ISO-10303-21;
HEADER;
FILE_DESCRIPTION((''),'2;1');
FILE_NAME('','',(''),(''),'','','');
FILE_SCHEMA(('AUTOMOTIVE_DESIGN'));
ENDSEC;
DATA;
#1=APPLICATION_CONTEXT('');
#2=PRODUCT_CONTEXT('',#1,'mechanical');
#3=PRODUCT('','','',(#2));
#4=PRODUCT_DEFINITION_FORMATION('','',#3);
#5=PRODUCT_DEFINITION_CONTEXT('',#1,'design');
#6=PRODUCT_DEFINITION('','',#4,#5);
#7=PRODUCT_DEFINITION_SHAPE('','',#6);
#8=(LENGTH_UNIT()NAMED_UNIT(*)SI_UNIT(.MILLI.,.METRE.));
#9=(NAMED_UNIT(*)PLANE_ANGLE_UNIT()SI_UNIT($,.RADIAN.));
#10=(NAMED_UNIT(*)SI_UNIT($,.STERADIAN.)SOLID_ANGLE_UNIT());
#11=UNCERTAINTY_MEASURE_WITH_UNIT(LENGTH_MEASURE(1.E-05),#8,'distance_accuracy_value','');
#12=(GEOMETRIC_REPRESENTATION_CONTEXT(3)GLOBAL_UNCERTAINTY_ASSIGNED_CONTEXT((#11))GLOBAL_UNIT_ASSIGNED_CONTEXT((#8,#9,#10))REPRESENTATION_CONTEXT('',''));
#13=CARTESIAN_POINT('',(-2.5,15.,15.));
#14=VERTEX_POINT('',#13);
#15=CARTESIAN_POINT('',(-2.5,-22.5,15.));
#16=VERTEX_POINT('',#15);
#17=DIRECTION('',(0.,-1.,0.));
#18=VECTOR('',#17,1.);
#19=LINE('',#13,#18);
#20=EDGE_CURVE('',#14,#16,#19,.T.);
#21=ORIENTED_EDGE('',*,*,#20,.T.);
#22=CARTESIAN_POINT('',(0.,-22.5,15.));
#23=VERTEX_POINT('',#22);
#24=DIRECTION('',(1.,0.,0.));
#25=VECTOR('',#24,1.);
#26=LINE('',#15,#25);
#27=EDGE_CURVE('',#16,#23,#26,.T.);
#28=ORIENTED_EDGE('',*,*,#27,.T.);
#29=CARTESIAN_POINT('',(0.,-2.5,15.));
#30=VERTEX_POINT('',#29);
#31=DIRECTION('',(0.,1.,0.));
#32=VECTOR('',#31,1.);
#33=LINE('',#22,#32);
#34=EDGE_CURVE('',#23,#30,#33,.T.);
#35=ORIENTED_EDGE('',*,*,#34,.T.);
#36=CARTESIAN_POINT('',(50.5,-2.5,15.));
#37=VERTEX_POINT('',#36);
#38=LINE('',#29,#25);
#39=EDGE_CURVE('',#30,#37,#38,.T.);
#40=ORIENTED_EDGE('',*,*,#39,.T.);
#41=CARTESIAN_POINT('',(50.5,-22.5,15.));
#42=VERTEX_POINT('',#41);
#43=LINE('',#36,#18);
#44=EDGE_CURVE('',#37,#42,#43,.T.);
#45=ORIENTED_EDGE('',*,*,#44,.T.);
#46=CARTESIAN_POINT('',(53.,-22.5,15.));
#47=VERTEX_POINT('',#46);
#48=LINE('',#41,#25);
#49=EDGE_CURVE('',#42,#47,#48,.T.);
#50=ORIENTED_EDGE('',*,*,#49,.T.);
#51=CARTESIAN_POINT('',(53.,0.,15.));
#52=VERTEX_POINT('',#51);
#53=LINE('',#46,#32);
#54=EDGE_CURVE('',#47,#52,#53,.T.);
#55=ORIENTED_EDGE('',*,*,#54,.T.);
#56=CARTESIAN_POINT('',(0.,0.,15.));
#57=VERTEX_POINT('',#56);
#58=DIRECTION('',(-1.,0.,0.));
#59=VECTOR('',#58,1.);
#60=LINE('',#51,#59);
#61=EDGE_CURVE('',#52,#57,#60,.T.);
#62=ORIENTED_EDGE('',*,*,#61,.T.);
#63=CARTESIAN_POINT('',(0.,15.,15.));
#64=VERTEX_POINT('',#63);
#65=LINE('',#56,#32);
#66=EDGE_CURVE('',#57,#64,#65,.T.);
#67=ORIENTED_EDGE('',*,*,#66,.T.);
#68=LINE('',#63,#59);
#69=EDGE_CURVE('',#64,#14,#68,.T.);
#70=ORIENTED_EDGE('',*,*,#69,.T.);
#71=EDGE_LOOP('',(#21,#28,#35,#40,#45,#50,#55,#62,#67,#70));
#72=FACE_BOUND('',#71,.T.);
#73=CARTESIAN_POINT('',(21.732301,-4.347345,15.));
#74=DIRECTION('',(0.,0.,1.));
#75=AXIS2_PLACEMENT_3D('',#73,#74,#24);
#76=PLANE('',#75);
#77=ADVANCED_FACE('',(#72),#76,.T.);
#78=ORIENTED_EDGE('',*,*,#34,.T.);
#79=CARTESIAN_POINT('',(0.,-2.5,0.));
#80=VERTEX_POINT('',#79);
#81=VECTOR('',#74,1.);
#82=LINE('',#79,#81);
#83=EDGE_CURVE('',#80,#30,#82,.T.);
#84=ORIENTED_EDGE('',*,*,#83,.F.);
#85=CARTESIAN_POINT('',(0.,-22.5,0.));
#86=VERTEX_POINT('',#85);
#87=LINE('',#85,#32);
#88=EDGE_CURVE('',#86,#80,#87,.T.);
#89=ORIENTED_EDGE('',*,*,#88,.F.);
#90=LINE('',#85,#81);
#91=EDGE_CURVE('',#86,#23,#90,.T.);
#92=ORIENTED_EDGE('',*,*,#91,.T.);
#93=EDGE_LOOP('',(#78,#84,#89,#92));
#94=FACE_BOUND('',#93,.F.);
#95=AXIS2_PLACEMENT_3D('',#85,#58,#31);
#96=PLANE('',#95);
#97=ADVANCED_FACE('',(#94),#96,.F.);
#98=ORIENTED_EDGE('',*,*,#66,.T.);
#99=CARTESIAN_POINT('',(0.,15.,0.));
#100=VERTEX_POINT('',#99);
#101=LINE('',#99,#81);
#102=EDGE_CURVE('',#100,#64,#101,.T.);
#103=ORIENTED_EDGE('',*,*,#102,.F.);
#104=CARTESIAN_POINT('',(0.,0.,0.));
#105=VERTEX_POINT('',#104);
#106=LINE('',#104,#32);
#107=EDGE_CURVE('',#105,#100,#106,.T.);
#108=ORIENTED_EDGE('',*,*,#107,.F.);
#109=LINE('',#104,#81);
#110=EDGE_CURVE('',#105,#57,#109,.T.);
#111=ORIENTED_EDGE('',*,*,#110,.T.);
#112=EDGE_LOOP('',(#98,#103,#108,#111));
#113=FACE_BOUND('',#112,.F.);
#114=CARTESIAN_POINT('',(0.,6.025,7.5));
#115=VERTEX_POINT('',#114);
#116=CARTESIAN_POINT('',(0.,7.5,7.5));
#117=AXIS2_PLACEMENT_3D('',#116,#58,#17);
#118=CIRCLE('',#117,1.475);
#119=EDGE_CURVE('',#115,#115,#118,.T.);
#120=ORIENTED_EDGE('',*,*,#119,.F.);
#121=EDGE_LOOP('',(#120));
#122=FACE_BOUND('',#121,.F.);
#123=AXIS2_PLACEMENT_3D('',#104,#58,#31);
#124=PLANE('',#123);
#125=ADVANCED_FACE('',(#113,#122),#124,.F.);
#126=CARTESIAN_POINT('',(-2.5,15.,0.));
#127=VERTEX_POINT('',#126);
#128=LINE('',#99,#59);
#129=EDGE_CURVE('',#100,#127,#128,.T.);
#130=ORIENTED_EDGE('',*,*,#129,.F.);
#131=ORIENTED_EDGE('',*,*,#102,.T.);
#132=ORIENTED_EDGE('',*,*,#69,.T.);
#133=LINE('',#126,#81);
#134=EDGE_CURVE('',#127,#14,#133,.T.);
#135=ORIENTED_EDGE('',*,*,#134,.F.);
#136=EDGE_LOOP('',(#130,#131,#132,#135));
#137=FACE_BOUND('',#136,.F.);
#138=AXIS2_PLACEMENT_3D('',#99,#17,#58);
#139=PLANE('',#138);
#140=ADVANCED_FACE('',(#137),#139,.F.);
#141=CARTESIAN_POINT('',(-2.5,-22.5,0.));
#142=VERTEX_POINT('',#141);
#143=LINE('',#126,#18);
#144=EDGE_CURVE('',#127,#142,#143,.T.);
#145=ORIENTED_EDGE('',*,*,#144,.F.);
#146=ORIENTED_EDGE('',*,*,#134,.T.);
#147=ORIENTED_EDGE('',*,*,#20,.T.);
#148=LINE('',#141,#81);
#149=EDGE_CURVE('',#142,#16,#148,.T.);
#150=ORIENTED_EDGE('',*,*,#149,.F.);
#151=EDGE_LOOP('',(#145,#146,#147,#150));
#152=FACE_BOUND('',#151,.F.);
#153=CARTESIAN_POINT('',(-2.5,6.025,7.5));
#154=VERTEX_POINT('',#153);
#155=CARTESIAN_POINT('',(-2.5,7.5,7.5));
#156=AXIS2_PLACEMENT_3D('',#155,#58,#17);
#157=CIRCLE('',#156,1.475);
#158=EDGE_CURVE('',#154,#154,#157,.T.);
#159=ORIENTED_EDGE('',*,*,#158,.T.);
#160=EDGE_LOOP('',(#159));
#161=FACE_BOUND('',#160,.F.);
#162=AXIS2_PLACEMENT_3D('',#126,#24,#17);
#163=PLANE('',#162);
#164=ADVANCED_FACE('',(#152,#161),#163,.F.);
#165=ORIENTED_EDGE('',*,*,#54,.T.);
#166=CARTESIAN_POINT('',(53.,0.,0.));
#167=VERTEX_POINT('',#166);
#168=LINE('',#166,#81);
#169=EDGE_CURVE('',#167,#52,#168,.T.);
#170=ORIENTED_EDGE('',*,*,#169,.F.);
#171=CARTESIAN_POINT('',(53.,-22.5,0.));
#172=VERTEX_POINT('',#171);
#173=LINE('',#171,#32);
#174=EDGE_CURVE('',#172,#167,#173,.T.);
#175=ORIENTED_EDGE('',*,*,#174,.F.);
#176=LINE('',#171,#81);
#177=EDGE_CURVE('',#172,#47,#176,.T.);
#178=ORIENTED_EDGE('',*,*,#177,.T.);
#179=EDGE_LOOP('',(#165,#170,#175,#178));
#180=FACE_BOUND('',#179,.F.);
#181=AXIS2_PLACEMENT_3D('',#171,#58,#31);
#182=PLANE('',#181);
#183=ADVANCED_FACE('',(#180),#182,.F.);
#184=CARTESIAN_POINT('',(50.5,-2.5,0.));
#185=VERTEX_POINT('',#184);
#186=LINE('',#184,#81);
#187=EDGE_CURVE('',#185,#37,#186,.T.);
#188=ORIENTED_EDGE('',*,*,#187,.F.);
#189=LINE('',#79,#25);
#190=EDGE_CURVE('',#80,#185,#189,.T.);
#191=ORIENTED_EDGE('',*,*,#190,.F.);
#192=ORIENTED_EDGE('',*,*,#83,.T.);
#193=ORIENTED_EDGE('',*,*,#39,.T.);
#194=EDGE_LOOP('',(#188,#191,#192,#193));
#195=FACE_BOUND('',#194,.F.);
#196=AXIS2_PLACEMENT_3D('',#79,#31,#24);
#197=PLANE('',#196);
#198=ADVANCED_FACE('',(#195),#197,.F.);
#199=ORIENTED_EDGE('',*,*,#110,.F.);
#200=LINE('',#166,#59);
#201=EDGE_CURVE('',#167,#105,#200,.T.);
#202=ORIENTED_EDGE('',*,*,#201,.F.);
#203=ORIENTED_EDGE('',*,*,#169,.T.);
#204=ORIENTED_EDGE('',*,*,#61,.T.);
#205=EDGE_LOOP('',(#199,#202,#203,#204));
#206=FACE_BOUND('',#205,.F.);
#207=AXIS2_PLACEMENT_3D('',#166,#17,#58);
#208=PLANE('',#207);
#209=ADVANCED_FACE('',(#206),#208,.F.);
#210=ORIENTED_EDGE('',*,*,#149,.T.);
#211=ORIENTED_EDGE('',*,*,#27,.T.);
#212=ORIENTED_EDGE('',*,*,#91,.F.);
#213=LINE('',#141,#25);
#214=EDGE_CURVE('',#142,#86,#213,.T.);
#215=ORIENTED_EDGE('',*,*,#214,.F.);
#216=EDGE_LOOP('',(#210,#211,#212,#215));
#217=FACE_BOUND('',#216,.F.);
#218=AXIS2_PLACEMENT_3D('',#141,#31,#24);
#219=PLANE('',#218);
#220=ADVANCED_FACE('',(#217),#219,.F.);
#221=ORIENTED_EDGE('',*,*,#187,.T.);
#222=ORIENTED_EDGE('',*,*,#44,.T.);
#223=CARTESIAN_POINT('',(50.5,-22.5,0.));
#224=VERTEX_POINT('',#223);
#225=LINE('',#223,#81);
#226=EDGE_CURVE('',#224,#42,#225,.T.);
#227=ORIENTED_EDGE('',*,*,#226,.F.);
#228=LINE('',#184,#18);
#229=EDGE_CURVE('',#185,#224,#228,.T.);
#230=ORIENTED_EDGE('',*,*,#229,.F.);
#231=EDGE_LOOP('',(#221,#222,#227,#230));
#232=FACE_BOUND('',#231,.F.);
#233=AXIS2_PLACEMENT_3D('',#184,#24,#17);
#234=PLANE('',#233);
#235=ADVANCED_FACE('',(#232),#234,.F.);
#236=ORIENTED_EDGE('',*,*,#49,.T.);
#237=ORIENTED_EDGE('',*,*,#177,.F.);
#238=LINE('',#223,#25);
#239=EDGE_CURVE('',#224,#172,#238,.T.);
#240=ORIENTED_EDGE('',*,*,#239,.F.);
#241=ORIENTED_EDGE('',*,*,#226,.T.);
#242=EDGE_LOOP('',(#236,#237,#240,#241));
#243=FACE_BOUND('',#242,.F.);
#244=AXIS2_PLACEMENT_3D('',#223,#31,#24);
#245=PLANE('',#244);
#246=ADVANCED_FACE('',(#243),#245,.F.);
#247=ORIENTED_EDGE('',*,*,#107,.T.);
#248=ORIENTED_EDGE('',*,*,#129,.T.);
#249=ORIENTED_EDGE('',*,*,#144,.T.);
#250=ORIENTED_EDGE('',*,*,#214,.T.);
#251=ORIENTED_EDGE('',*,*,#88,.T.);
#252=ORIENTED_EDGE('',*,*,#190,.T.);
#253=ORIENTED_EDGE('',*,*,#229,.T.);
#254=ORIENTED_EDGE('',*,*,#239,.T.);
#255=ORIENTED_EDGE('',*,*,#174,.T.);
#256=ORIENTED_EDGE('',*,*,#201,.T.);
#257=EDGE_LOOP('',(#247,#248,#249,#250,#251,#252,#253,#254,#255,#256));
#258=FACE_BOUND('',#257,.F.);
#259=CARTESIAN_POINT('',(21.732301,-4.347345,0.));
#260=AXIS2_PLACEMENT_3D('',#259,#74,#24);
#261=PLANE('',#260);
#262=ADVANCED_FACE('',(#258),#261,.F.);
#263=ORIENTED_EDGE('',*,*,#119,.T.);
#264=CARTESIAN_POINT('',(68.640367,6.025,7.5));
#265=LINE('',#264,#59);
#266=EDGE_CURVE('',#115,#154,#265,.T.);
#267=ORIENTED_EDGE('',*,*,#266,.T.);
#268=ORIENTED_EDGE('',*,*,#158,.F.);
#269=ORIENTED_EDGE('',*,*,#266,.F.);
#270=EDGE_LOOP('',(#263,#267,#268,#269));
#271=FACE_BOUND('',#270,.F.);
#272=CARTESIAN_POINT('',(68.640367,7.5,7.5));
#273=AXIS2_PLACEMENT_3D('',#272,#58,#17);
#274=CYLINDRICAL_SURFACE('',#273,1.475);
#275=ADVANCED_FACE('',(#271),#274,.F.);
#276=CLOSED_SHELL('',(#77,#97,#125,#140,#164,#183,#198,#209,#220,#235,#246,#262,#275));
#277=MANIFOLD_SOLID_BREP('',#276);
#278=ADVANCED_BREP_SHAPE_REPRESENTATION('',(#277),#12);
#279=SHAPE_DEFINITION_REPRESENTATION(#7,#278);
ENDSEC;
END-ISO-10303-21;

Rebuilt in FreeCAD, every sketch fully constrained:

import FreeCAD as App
import Part
import Sketcher

V = App.Vector

doc = App.newDocument("Part")
body = doc.addObject("PartDesign::Body", "Body")

# Sketch on XY plane
sketch1 = doc.addObject("Sketcher::SketchObject", "Sketch")
body.addObject(sketch1)
sketch1.AttachmentSupport = (doc.XY_Plane, [""])
sketch1.MapMode = "FlatFace"
sketch1.addGeometry([
    Part.LineSegment(V(53, 0, 0), V(0, 0, 0)),  # 0
    Part.LineSegment(V(0, 0, 0), V(0, 15, 0)),  # 1
    Part.LineSegment(V(0, 15, 0), V(-2.5, 15, 0)),  # 2
    Part.LineSegment(V(-2.5, 15, 0), V(-2.5, -22.5, 0)),  # 3
    Part.LineSegment(V(-2.5, -22.5, 0), V(0, -22.5, 0)),  # 4
    Part.LineSegment(V(0, -22.5, 0), V(0, -2.5, 0)),  # 5
    Part.LineSegment(V(0, -2.5, 0), V(50.5, -2.5, 0)),  # 6
    Part.LineSegment(V(50.5, -2.5, 0), V(50.5, -22.5, 0)),  # 7
    Part.LineSegment(V(50.5, -22.5, 0), V(53, -22.5, 0)),  # 8
    Part.LineSegment(V(53, -22.5, 0), V(53, 0, 0)),  # 9
], False)
sketch1.addConstraint([
    Sketcher.Constraint("Coincident", 0, 2, 1, 1),
    Sketcher.Constraint("Coincident", 1, 2, 2, 1),
    Sketcher.Constraint("Coincident", 2, 2, 3, 1),
    Sketcher.Constraint("Coincident", 3, 2, 4, 1),
    Sketcher.Constraint("Coincident", 4, 2, 5, 1),
    Sketcher.Constraint("Coincident", 5, 2, 6, 1),
    Sketcher.Constraint("Coincident", 6, 2, 7, 1),
    Sketcher.Constraint("Coincident", 7, 2, 8, 1),
    Sketcher.Constraint("Coincident", 8, 2, 9, 1),
    Sketcher.Constraint("Coincident", 9, 2, 0, 1),
    Sketcher.Constraint("Horizontal", 0),
    Sketcher.Constraint("Vertical", 1),
    Sketcher.Constraint("Horizontal", 2),
    Sketcher.Constraint("Vertical", 3),
    Sketcher.Constraint("Horizontal", 4),
    Sketcher.Constraint("Vertical", 5),
    Sketcher.Constraint("Horizontal", 6),
    Sketcher.Constraint("Vertical", 7),
    Sketcher.Constraint("Horizontal", 8),
    Sketcher.Constraint("Vertical", 9),
    Sketcher.Constraint("Coincident", 0, 2, -1, 1),
    Sketcher.Constraint("PointOnObject", 4, 2, -2),
    Sketcher.Constraint("Horizontal", 4, 2, 7, 2),
    Sketcher.Constraint("Equal", 4, 8),
    Sketcher.Constraint("DistanceX", 0, 2, 0, 1, 53.0),
    Sketcher.Constraint("DistanceY", 1, 1, 1, 2, 15.0),
    Sketcher.Constraint("DistanceY", 5, 1, 5, 2, 20.0),
    Sketcher.Constraint("DistanceX", 2, 2, 2, 1, 2.5),
    Sketcher.Constraint("DistanceY", 3, 2, 3, 1, 37.5),
])
pad1 = doc.addObject("PartDesign::Pad", "Pad")
body.addObject(pad1)
pad1.Profile = sketch1
pad1.Length = 15

# Sketch on YZ plane
sketch2 = doc.addObject("Sketcher::SketchObject", "Sketch001")
body.addObject(sketch2)
sketch2.AttachmentSupport = (doc.YZ_Plane, [""])
sketch2.MapMode = "FlatFace"
sketch2.addGeometry(Part.Circle(V(7.5, 7.5, 0), V(0, 0, 1), 1.5), False)
sketch2.addConstraint([
    Sketcher.Constraint("Diameter", 0, 2.95),
    Sketcher.Constraint("DistanceX", -1, 1, 0, 3, 7.5),
    Sketcher.Constraint("DistanceY", -1, 1, 0, 3, 7.5),
])
doc.recompute()
hole = doc.addObject("PartDesign::Hole", "Hole")
body.addObject(hole)
hole.Profile = sketch2
hole.ThreadType = "None"
hole.Diameter = 2.95
hole.DepthType = "ThroughAll"

doc.recompute()
